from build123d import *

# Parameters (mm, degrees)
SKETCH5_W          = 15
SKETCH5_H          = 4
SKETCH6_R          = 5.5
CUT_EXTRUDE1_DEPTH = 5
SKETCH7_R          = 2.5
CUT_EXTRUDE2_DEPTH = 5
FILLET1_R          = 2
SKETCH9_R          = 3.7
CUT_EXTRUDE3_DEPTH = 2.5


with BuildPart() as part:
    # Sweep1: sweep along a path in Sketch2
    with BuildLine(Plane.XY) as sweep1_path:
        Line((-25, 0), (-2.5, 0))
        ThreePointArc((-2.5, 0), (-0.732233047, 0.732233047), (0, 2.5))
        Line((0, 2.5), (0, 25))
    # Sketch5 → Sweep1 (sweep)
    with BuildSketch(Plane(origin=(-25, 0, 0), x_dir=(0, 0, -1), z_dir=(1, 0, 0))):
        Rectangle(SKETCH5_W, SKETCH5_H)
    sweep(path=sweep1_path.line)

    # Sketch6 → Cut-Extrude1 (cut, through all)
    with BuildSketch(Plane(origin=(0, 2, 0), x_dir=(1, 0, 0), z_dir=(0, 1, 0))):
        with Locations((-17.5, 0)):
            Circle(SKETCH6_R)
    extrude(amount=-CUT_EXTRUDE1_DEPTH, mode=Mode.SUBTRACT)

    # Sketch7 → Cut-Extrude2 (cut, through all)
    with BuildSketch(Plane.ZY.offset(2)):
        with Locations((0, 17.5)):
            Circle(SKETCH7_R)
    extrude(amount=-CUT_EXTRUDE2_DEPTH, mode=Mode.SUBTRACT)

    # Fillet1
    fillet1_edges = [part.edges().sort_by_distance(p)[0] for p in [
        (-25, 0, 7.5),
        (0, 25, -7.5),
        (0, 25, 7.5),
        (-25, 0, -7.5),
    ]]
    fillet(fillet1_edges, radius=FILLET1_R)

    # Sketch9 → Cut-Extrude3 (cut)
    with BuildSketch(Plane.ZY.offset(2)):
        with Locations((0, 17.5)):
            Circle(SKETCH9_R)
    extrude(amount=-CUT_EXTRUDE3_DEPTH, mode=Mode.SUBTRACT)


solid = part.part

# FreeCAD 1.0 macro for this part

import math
import FreeCAD as App
import Part
import Sketcher
from FreeCAD import Vector


def edges_at(feature, points):
    """Names of the edges that pass closest to the given points."""
    edges = feature.Shape.Edges
    near = lambda p: min(range(len(edges)), key=lambda i: edges[i].distToShape(Part.Vertex(*p))[0])
    return sorted({f"Edge{near(p) + 1}" for p in points})

doc = App.newDocument("Part")
body = doc.addObject("PartDesign::Body", "Body")

sketch1 = body.newObject("Sketcher::SketchObject", "Sketch")
sketch1.AttachmentSupport = (doc.getObject("YZ_Plane"), [""])
sketch1.MapMode = "FlatFace"
sketch1.AttachmentOffset = App.Placement(Vector(0, 0, -25), App.Rotation())
sketch1.addGeometry([
    Part.LineSegment(Vector(2, 7.5, 0), Vector(-2, 7.5, 0)),
    Part.LineSegment(Vector(-2, 7.5, 0), Vector(-2, -7.5, 0)),
    Part.LineSegment(Vector(-2, -7.5, 0), Vector(2, -7.5, 0)),
    Part.LineSegment(Vector(2, -7.5, 0), Vector(2, 7.5, 0)),
], False)
sketch1.addConstraint([
    Sketcher.Constraint("Coincident", 0, 2, 1, 1),
    Sketcher.Constraint("Coincident", 1, 2, 2, 1),
    Sketcher.Constraint("Coincident", 2, 2, 3, 1),
    Sketcher.Constraint("Coincident", 3, 2, 0, 1),
    Sketcher.Constraint("Horizontal", 0),
    Sketcher.Constraint("Vertical", 1),
    Sketcher.Constraint("Horizontal", 2),
    Sketcher.Constraint("Vertical", 3),
    Sketcher.Constraint("Symmetric", 0, 2, 2, 2, -1, 1),
    Sketcher.Constraint("DistanceX", 0, 2, 0, 1, 4.0),
    Sketcher.Constraint("DistanceY", 1, 2, 1, 1, 15.0),
])

sketch2 = body.newObject("Sketcher::SketchObject", "Sketch001")
sketch2.AttachmentSupport = (doc.getObject("XY_Plane"), [""])
sketch2.MapMode = "FlatFace"
sketch2.addGeometry([
    Part.LineSegment(Vector(-25, 0, 0), Vector(-2.5, 0, 0)),
    Part.ArcOfCircle(Part.Circle(Vector(-2.5, 2.5, 0), Vector(0, 0, 1), 2.5), math.radians(-90), math.radians(0)),
    Part.LineSegment(Vector(0, 2.5, 0), Vector(0, 25, 0)),
], False)
sketch2.addConstraint([
    Sketcher.Constraint("Tangent", 0, 2, 1, 1),
    Sketcher.Constraint("Tangent", 1, 2, 2, 1),
    Sketcher.Constraint("Horizontal", 0),
    Sketcher.Constraint("Vertical", 2),
    Sketcher.Constraint("PointOnObject", 0, 1, -1),
    Sketcher.Constraint("PointOnObject", 1, 2, -2),
    Sketcher.Constraint("Equal", 0, 2),
    Sketcher.Constraint("Radius", 1, 2.5),
    Sketcher.Constraint("DistanceX", 0, 1, 0, 2, 22.5),
])
doc.recompute()

additivepipe = body.newObject("PartDesign::AdditivePipe", "AdditivePipe")
additivepipe.Profile = sketch1
additivepipe.Spine = (sketch2, ["Edge1", "Edge2", "Edge3"])

sketch3 = body.newObject("Sketcher::SketchObject", "Sketch002")
sketch3.AttachmentSupport = (doc.getObject("XZ_Plane"), [""])
sketch3.MapMode = "FlatFace"
sketch3.AttachmentOffset = App.Placement(Vector(0, 0, -2), App.Rotation())
sketch3.addGeometry(Part.Circle(Vector(-17.5, 0, 0), Vector(0, 0, 1), 5.5), False)
sketch3.addConstraint([
    Sketcher.Constraint("PointOnObject", 0, 3, -1),
    Sketcher.Constraint("Diameter", 0, 11.0),
    Sketcher.Constraint("DistanceX", 0, 3, -1, 1, 17.5),
])
pocket1 = body.newObject("PartDesign::Pocket", "Pocket")
pocket1.Profile = sketch3
pocket1.Type = "ThroughAll"
pocket1.Reversed = True

sketch4 = body.newObject("Sketcher::SketchObject", "Sketch003")
sketch4.AttachmentSupport = (doc.getObject("YZ_Plane"), [""])
sketch4.MapMode = "FlatFace"
sketch4.AttachmentOffset = App.Placement(Vector(0, 0, -2), App.Rotation())
sketch4.addGeometry(Part.Circle(Vector(17.5, 0, 0), Vector(0, 0, 1), 2.5), False)
sketch4.addConstraint([
    Sketcher.Constraint("PointOnObject", 0, 3, -1),
    Sketcher.Constraint("Diameter", 0, 5.0),
    Sketcher.Constraint("DistanceX", -1, 1, 0, 3, 17.5),
])
pocket2 = body.newObject("PartDesign::Pocket", "Pocket001")
pocket2.Profile = sketch4
pocket2.Type = "ThroughAll"
pocket2.Reversed = True
doc.recompute()

fillet = body.newObject("PartDesign::Fillet", "Fillet")
fillet.Base = (pocket2, edges_at(pocket2, [
    (-25, 0, 7.5),
    (0, 25, -7.5),
    (0, 25, 7.5),
    (-25, 0, -7.5),
]))
fillet.Radius = 2

sketch5 = body.newObject("Sketcher::SketchObject", "Sketch004")
sketch5.AttachmentSupport = (doc.getObject("YZ_Plane"), [""])
sketch5.MapMode = "FlatFace"
sketch5.AttachmentOffset = App.Placement(Vector(0, 0, -2), App.Rotation())
sketch5.addGeometry(Part.Circle(Vector(17.5, 0, 0), Vector(0, 0, 1), 3.7), False)
sketch5.addConstraint([
    Sketcher.Constraint("PointOnObject", 0, 3, -1),
    Sketcher.Constraint("Diameter", 0, 7.4),
    Sketcher.Constraint("DistanceX", -1, 1, 0, 3, 17.5),
])
pocket3 = body.newObject("PartDesign::Pocket", "Pocket002")
pocket3.Profile = sketch5
pocket3.Length = 2.5
pocket3.Reversed = True

doc.recompute()
